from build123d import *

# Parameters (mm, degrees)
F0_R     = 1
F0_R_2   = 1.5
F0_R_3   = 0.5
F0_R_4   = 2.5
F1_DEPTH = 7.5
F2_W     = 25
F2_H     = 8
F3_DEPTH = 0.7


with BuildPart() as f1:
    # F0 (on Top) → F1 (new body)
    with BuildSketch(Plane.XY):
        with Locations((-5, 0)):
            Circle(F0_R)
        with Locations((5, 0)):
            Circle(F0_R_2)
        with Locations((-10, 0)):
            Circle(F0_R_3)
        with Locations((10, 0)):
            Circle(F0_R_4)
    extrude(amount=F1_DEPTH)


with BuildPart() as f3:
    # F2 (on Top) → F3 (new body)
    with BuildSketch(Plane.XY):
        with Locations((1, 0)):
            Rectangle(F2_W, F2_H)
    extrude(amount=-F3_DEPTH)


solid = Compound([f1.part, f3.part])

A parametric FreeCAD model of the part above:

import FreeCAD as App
import Part
import Sketcher

V = App.Vector

doc = App.newDocument("Part")
body = doc.addObject("PartDesign::Body", "Body")
body.AllowCompound = True

sketch1 = body.newObject("Sketcher::SketchObject", "Sketch")
sketch1.AttachmentSupport = (doc.getObject("XY_Plane"), [""])
sketch1.MapMode = "FlatFace"
sketch1.addGeometry([
    Part.Circle(V(-5, 0, 0), V(0, 0, 1), 1),
    Part.Circle(V(5, 0, 0), V(0, 0, 1), 1.5),
    Part.Circle(V(-10, 0, 0), V(0, 0, 1), 0.5),
    Part.Circle(V(10, 0, 0), V(0, 0, 1), 2.5),
], False)
sketch1.addConstraint([
    Sketcher.Constraint("Symmetric", 0, 3, 1, 3, -1, 1),
    Sketcher.Constraint("Symmetric", 2, 3, 3, 3, -1, 1),
    Sketcher.Constraint("PointOnObject", 0, 3, -1),
    Sketcher.Constraint("PointOnObject", 2, 3, -1),
    Sketcher.Constraint("Diameter", 0, 2.0),
    Sketcher.Constraint("Diameter", 1, 3.0),
    Sketcher.Constraint("Diameter", 2, 1.0),
    Sketcher.Constraint("Diameter", 3, 5.0),
    Sketcher.Constraint("DistanceX", 0, 3, -1, 1, 5.0),
    Sketcher.Constraint("DistanceX", 2, 3, -1, 1, 10.0),
])
pad1 = body.newObject("PartDesign::Pad", "Pad")
pad1.Profile = sketch1
pad1.Length = 7.5
body2 = doc.addObject("PartDesign::Body", "Body001")

sketch2 = body2.newObject("Sketcher::SketchObject", "Sketch001")
sketch2.AttachmentSupport = (doc.getObject("XY_Plane001"), [""])
sketch2.MapMode = "FlatFace"
sketch2.addGeometry([
    Part.LineSegment(V(-12, 4, 0), V(-12, -4, 0)),
    Part.LineSegment(V(-12, -4, 0), V(14, -4, 0)),
    Part.LineSegment(V(14, -4, 0), V(14, 4, 0)),
    Part.LineSegment(V(14, 4, 0), V(-12, 4, 0)),
], False)
sketch2.addConstraint([
    Sketcher.Constraint("Coincident", 0, 2, 1, 1),
    Sketcher.Constraint("Coincident", 1, 2, 2, 1),
    Sketcher.Constraint("Coincident", 2, 2, 3, 1),
    Sketcher.Constraint("Coincident", 3, 2, 0, 1),
    Sketcher.Constraint("Vertical", 0),
    Sketcher.Constraint("Horizontal", 1),
    Sketcher.Constraint("Vertical", 2),
    Sketcher.Constraint("Horizontal", 3),
    Sketcher.Constraint("DistanceX", 1, 1, 1, 2, 25.0),
    Sketcher.Constraint("DistanceY", 0, 2, 0, 1, 8.0),
    Sketcher.Constraint("DistanceY", 0, 2, -1, 1, 4.0),
    Sketcher.Constraint("DistanceX", 0, 2, -1, 1, 11.5),
])
pad2 = body2.newObject("PartDesign::Pad", "Pad001")
pad2.Profile = sketch2
pad2.Length = 0.7
pad2.Reversed = True

doc.recompute()
